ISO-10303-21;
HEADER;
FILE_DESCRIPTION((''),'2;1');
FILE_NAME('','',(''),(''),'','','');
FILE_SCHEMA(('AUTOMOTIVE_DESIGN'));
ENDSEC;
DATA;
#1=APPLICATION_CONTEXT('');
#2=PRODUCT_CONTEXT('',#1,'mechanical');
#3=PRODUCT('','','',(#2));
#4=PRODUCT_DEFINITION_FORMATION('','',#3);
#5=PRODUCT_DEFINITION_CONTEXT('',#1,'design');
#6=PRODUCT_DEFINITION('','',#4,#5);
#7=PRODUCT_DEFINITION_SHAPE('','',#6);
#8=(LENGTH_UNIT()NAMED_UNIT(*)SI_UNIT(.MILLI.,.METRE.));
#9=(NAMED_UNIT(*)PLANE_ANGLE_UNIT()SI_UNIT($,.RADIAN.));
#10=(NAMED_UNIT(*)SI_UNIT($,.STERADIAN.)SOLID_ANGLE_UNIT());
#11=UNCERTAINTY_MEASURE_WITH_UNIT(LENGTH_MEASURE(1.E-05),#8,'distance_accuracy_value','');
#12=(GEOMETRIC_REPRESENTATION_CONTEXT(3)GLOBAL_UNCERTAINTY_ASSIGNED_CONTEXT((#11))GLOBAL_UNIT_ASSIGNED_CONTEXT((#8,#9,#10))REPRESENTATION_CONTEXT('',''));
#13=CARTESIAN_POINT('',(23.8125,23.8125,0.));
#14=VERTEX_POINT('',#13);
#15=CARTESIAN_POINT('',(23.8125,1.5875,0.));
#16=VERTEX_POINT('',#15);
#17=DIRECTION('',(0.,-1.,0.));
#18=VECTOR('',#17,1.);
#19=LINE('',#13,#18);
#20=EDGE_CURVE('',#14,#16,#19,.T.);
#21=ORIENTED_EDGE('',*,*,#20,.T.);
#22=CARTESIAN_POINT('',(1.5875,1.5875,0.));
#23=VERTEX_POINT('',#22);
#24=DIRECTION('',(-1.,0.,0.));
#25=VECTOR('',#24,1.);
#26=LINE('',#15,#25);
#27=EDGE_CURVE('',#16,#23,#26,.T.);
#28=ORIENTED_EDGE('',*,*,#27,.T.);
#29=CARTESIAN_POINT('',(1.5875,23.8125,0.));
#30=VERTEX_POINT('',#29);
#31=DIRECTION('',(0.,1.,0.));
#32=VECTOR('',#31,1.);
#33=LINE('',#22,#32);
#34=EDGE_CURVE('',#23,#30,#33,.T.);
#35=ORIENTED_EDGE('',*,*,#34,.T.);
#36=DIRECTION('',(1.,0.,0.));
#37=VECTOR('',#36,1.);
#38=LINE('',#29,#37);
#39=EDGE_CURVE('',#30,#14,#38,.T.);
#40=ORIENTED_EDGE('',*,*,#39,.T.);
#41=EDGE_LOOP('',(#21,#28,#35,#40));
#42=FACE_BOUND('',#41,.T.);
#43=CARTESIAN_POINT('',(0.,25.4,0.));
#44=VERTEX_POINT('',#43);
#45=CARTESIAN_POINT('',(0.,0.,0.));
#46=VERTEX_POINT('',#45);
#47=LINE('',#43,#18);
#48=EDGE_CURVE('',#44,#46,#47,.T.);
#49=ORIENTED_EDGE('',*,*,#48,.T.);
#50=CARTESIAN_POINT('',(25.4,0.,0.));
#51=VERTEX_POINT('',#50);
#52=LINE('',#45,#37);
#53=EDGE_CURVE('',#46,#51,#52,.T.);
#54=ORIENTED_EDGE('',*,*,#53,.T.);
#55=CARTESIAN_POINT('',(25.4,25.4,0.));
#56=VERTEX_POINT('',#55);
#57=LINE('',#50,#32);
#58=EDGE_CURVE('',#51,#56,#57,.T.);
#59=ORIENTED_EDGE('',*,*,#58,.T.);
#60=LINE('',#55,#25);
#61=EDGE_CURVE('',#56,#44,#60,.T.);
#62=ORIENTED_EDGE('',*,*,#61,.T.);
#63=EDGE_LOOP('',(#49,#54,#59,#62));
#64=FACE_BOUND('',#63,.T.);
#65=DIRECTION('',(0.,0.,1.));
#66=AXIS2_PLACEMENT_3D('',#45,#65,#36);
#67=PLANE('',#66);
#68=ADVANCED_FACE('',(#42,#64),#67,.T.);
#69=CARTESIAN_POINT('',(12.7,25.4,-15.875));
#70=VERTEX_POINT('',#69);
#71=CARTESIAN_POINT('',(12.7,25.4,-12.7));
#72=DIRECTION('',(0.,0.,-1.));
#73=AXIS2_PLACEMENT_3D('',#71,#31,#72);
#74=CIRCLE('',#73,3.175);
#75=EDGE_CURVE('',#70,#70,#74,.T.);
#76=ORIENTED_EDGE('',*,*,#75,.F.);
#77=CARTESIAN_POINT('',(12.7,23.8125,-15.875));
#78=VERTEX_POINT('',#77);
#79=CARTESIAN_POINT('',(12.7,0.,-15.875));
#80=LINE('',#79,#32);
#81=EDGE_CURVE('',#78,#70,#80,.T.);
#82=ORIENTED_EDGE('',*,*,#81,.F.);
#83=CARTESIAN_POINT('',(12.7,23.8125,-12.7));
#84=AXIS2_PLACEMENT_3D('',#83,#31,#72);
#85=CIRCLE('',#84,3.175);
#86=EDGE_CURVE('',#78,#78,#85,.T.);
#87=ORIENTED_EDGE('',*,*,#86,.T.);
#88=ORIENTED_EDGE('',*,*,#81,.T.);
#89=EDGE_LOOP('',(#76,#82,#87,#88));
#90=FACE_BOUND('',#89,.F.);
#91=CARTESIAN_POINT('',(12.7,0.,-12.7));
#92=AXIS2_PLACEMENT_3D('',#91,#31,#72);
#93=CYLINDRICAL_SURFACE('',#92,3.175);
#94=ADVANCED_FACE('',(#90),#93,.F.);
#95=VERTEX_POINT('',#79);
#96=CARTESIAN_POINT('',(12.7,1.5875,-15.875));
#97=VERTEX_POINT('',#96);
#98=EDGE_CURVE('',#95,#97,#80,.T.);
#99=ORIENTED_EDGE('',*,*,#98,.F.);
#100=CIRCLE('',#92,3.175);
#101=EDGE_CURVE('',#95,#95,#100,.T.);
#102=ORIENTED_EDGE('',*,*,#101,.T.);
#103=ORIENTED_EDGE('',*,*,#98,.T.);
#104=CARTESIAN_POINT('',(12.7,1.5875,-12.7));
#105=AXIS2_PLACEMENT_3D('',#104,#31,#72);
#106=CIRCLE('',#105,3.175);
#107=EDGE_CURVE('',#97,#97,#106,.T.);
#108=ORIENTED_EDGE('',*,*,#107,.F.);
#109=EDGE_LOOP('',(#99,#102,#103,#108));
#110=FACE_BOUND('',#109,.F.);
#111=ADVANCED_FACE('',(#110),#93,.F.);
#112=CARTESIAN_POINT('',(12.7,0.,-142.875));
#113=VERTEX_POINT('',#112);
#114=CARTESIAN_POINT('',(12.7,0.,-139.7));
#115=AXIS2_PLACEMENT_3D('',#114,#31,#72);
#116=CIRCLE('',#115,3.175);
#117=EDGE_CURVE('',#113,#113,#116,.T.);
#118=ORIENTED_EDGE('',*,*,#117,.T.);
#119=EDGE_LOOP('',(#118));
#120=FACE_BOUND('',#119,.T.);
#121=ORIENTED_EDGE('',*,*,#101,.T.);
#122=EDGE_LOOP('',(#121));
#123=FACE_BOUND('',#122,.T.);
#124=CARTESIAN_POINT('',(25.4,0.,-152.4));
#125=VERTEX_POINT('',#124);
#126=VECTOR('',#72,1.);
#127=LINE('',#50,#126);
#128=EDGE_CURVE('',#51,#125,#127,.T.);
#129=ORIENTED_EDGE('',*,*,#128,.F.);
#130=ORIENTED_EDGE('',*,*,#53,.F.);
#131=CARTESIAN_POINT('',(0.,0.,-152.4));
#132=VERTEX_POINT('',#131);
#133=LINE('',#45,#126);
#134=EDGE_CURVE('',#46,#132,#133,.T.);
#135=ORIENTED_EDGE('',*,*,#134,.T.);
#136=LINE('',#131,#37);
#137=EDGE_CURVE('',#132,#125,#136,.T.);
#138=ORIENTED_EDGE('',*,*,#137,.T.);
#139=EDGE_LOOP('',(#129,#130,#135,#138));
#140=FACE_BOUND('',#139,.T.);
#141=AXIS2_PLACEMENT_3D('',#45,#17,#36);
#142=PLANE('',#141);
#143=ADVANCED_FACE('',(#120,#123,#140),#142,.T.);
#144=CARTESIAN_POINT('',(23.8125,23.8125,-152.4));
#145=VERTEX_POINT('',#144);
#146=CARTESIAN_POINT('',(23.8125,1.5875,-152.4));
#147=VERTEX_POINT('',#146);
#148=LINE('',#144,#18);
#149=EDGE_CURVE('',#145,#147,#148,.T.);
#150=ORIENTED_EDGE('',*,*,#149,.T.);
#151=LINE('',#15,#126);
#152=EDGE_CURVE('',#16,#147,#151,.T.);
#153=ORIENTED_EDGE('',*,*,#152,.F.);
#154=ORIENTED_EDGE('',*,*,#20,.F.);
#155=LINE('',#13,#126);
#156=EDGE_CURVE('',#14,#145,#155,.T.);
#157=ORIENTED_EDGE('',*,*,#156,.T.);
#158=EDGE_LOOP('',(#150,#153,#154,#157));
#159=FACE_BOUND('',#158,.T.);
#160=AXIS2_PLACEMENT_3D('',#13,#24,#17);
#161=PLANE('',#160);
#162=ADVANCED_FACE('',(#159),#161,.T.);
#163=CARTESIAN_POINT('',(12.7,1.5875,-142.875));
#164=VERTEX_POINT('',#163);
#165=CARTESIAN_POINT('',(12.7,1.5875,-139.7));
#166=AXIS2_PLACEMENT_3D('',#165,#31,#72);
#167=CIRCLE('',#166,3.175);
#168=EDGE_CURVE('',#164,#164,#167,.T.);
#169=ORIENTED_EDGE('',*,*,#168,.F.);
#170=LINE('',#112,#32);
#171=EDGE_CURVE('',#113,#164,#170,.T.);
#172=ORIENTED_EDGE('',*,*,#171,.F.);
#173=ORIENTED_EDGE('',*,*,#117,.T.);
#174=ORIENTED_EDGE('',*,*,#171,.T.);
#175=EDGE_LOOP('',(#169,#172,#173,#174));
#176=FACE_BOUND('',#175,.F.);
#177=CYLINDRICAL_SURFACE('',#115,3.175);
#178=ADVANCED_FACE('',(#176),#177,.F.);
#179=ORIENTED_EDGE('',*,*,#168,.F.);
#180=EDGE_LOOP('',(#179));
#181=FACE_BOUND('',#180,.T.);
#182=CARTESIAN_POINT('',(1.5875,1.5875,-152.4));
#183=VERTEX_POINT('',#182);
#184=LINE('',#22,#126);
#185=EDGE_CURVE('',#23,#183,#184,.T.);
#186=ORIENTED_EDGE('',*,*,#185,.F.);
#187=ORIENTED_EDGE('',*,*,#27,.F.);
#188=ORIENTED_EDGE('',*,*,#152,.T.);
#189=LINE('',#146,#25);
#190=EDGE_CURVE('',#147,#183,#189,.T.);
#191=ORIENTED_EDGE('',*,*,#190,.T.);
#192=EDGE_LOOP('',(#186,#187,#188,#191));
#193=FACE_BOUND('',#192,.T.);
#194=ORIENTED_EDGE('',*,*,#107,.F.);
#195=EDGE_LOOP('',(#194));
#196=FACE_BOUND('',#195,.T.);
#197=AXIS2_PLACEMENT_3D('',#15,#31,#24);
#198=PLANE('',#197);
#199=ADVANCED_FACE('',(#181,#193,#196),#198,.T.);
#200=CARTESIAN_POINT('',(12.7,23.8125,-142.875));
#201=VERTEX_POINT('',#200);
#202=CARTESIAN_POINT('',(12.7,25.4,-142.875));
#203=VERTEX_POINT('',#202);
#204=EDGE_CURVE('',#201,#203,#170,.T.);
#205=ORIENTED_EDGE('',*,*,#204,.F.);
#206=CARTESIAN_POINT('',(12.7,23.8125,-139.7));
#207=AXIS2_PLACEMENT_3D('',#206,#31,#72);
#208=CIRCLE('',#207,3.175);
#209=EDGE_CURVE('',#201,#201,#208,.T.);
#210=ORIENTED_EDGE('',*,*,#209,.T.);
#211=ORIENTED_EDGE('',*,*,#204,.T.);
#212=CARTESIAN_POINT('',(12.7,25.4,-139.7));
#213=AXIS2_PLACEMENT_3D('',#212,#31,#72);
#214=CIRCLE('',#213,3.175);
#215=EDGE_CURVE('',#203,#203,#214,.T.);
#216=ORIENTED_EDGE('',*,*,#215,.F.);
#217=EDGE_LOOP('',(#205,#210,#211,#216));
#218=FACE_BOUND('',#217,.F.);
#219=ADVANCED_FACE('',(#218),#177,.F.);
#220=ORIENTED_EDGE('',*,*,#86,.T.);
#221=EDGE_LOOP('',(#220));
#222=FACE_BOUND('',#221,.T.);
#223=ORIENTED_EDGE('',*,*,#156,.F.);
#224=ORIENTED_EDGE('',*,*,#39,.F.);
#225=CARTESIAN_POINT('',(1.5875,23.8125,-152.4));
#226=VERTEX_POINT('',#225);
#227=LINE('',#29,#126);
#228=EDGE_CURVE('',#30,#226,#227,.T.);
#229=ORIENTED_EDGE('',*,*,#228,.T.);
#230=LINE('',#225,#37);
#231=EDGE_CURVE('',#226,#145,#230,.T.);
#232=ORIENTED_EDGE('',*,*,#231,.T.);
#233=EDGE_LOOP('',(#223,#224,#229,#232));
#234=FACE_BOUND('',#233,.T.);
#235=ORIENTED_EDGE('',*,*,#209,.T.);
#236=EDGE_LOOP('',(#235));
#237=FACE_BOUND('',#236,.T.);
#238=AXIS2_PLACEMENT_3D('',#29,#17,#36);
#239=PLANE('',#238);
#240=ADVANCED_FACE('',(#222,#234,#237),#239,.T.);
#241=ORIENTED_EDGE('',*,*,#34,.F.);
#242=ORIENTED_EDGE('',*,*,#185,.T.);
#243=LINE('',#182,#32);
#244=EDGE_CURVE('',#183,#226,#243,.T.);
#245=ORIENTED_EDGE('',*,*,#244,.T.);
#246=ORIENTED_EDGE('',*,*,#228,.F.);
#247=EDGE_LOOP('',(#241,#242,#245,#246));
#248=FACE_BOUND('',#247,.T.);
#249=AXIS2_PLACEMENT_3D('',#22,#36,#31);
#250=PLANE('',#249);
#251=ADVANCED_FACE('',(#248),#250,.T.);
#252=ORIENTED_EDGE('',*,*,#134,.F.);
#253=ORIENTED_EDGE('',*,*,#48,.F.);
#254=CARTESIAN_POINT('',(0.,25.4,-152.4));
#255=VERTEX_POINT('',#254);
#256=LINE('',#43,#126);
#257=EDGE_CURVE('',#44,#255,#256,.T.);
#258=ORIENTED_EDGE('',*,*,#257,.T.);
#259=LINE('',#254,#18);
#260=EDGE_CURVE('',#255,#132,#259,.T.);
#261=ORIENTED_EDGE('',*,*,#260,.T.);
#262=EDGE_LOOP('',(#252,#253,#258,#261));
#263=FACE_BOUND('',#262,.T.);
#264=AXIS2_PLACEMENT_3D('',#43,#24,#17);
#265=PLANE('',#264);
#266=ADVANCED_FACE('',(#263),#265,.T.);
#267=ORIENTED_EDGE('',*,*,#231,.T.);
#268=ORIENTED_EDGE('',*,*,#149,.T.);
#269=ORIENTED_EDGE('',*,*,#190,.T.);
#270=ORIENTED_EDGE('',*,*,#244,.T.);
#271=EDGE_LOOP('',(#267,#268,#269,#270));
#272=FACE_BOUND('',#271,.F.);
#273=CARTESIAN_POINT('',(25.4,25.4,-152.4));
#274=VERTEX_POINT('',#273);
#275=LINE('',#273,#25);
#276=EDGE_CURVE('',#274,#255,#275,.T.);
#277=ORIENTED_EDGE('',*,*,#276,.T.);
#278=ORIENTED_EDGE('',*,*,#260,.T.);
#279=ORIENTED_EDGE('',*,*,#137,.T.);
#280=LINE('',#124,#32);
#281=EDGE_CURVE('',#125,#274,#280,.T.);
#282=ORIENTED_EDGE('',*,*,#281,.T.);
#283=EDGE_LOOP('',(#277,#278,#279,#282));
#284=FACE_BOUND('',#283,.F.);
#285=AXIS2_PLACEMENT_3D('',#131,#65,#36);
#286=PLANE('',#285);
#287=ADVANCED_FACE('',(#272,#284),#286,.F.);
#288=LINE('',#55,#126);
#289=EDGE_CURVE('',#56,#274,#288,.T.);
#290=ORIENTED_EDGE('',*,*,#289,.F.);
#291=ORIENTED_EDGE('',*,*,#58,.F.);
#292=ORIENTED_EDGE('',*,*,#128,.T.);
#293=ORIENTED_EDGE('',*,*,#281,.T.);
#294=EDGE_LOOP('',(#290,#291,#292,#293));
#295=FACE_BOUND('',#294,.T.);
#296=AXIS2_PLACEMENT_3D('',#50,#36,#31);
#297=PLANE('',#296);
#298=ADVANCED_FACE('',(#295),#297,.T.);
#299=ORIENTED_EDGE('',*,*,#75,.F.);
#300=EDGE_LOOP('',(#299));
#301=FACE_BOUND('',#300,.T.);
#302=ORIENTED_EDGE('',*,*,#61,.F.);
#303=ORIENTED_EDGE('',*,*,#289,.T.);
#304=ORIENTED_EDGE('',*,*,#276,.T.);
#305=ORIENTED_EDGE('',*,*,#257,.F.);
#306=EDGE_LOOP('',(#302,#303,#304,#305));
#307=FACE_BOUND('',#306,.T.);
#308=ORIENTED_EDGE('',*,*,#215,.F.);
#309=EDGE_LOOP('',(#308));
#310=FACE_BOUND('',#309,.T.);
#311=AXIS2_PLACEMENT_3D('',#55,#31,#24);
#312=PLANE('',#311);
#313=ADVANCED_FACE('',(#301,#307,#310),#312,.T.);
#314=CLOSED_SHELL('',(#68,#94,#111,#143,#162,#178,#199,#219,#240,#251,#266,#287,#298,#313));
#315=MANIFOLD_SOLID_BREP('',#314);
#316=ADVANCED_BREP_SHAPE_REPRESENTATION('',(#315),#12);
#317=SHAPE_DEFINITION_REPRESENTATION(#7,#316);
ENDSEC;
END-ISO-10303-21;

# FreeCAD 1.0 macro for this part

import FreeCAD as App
import Part
import Sketcher
Q = App.Units.Quantity

doc = App.newDocument("Part")
body = doc.addObject("PartDesign::Body", "Body")

# Sketch on XY plane
sketch1 = body.newObject("Sketcher::SketchObject", "Sketch")
sketch1.AttachmentSupport = (doc.getObject("XY_Plane"), [""])
sketch1.MapMode = "FlatFace"
sketch1.addGeometry([
    Part.LineSegment(App.Vector(0, 25, 0), App.Vector(0, 0, 0)),  # 0
    Part.LineSegment(App.Vector(0, 0, 0), App.Vector(25, 0, 0)),  # 1
    Part.LineSegment(App.Vector(25, 0, 0), App.Vector(25, 25, 0)),  # 2
    Part.LineSegment(App.Vector(25, 25, 0), App.Vector(0, 25, 0)),  # 3
    Part.LineSegment(App.Vector(2, 2, 0), App.Vector(2, 24, 0)),  # 4
    Part.LineSegment(App.Vector(2, 24, 0), App.Vector(24, 24, 0)),  # 5
    Part.LineSegment(App.Vector(24, 24, 0), App.Vector(24, 2, 0)),  # 6
    Part.LineSegment(App.Vector(24, 2, 0), App.Vector(2, 2, 0)),  # 7
], False)
sketch1.addConstraint([
    Sketcher.Constraint("Coincident", 0, 2, 1, 1),
    Sketcher.Constraint("Coincident", 1, 2, 2, 1),
    Sketcher.Constraint("Coincident", 2, 2, 3, 1),
    Sketcher.Constraint("Coincident", 3, 2, 0, 1),
    Sketcher.Constraint("Coincident", 4, 2, 5, 1),
    Sketcher.Constraint("Coincident", 5, 2, 6, 1),
    Sketcher.Constraint("Coincident", 6, 2, 7, 1),
    Sketcher.Constraint("Coincident", 7, 2, 4, 1),
    Sketcher.Constraint("Vertical", 0),
    Sketcher.Constraint("Horizontal", 1),
    Sketcher.Constraint("Vertical", 2),
    Sketcher.Constraint("Horizontal", 3),
    Sketcher.Constraint("Vertical", 4),
    Sketcher.Constraint("Horizontal", 5),
    Sketcher.Constraint("Vertical", 6),
    Sketcher.Constraint("Horizontal", 7),
    Sketcher.Constraint("Coincident", 0, 2, -1, 1),
    Sketcher.Constraint("Equal", 3, 0),
    Sketcher.Constraint("Equal", 7, 4),
    Sketcher.Constraint("DistanceX", 1, 1, 1, 2, Q("1 in")),
    Sketcher.Constraint("DistanceX", -1, 1, 4, 2, Q("0.0625 in")),
    Sketcher.Constraint("DistanceY", -1, 1, 6, 2, Q("0.0625 in")),
    Sketcher.Constraint("DistanceY", 4, 2, 3, 2, Q("0.0625 in")),
])
pad1 = body.newObject("PartDesign::Pad", "Pad")
pad1.Profile = sketch1
pad1.Length = Q("6 in")
pad1.Reversed = True

# Sketch on XZ plane
sketch2 = body.newObject("Sketcher::SketchObject", "Sketch001")
sketch2.AttachmentSupport = (doc.getObject("XZ_Plane"), [""])
sketch2.MapMode = "FlatFace"
sketch2.addGeometry([
    Part.Circle(App.Vector(12.7, -12.7, 0), App.Vector(0, 0, 1), 3.2),
    Part.Circle(App.Vector(12.7, -139.7, 0), App.Vector(0, 0, 1), 3.2),
], False)
sketch2.addConstraint([
    Sketcher.Constraint("Equal", 0, 1),
    Sketcher.Constraint("Vertical", 0, 3, 1, 3),
    Sketcher.Constraint("Diameter", 0, Q("0.25 in")),
    Sketcher.Constraint("DistanceY", 1, 3, 0, 3, Q("5 in")),
    Sketcher.Constraint("DistanceX", -1, 1, 0, 3, Q("0.5 in")),
    Sketcher.Constraint("DistanceY", 0, 3, -1, 1, Q("0.5 in")),
])
doc.recompute()
hole = body.newObject("PartDesign::Hole", "Hole")
hole.Profile = sketch2
hole.ThreadType = "None"
hole.Diameter = Q("0.25 in")
hole.DepthType = "Dimension"
hole.Depth = Q("1 in")
hole.DrillPoint = "Angled"
hole.DrillPointAngle = 118

doc.recompute()
